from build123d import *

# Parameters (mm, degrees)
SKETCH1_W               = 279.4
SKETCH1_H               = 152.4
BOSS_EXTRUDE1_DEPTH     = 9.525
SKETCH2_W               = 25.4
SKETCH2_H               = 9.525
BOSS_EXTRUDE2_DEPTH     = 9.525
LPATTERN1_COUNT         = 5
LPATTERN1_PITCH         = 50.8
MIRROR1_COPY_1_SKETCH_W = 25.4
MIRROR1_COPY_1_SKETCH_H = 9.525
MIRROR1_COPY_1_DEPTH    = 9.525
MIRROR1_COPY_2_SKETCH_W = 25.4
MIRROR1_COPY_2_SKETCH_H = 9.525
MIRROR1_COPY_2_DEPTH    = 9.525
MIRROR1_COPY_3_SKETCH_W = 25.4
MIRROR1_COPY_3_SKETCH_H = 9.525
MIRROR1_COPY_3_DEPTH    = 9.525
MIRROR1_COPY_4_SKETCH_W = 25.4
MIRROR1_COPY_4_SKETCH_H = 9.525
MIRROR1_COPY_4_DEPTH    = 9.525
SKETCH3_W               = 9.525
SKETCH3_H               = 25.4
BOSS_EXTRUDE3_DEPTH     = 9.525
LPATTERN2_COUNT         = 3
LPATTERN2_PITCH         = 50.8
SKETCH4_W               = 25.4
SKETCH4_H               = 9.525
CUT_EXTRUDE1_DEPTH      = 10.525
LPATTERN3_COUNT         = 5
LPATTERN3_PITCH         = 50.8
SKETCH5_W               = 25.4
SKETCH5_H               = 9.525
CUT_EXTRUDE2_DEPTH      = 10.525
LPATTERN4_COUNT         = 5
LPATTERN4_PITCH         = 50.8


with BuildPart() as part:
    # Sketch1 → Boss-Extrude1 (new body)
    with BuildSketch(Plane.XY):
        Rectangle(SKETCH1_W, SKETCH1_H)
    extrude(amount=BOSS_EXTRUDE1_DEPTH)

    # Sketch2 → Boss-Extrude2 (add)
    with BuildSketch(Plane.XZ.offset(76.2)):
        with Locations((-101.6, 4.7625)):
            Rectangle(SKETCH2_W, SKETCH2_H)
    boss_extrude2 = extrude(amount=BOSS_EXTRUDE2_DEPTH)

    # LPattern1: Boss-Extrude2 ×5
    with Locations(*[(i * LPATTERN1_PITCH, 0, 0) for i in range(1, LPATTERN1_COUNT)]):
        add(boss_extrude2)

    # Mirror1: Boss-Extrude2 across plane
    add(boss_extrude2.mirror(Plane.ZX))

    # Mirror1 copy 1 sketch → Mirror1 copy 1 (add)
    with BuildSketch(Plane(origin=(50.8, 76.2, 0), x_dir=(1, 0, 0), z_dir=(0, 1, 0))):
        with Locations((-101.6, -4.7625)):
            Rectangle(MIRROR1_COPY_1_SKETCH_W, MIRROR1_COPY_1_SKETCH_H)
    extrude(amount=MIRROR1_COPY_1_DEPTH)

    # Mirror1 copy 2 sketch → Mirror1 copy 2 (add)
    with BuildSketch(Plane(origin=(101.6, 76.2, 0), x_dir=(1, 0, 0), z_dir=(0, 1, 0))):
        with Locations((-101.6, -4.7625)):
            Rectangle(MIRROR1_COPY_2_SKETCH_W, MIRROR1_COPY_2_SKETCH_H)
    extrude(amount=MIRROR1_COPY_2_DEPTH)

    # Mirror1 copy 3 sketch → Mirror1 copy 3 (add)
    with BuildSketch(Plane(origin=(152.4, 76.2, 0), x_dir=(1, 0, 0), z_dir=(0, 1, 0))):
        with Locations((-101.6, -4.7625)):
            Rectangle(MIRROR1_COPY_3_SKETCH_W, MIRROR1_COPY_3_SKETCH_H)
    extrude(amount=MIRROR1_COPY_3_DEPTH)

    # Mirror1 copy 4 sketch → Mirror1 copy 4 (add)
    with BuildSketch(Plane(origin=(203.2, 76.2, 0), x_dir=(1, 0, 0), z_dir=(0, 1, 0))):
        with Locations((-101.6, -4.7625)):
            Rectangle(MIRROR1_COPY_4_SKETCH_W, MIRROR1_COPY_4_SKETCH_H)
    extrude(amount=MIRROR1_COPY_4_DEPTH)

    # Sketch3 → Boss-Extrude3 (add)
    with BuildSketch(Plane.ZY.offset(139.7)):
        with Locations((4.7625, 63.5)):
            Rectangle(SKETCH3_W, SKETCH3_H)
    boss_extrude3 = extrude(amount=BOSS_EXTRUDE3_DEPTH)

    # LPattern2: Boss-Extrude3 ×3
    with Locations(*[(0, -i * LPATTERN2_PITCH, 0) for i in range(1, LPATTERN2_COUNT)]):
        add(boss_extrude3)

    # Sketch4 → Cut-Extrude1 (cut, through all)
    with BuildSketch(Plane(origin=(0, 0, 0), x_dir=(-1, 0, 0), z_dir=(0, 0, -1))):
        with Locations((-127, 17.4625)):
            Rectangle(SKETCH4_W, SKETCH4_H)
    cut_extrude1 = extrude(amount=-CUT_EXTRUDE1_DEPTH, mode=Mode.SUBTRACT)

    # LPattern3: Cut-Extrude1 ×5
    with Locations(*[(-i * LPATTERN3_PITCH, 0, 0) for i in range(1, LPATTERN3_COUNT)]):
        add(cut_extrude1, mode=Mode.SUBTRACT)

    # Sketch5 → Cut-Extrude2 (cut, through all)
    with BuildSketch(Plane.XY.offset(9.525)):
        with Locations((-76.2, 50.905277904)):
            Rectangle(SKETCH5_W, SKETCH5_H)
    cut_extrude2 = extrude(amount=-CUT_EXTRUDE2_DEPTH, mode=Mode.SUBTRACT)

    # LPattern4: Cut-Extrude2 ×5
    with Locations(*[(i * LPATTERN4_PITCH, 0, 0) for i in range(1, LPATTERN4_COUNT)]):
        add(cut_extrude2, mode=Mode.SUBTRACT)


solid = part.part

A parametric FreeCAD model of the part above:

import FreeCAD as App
import Part
import Sketcher
Q = App.Units.Quantity


def add_polygon(sketch, points):
    """Adds a closed chain of lines whose ends are joined by coincident constraints."""
    first, n = sketch.GeometryCount, len(points)
    for a, b in zip(points, points[1:] + points[:1]):
        sketch.addGeometry(Part.LineSegment(App.Vector(*a, 0), App.Vector(*b, 0)), False)
    for i in range(n):
        sketch.addConstraint(Sketcher.Constraint("Coincident", first + i, 2, first + (i + 1) % n, 1))

doc = App.newDocument("Part")
body = doc.addObject("PartDesign::Body", "Body")

sketch1 = body.newObject("Sketcher::SketchObject", "Sketch")
sketch1.AttachmentSupport = (doc.getObject("XY_Plane"), [""])
sketch1.MapMode = "FlatFace"
add_polygon(sketch1, [(-139.7, 76.2), (-139.7, -76.2), (139.7, -76.2), (139.7, 76.2)])
sketch1.addConstraint([
    Sketcher.Constraint("Vertical", 0),
    Sketcher.Constraint("Horizontal", 1),
    Sketcher.Constraint("Vertical", 2),
    Sketcher.Constraint("Horizontal", 3),
    Sketcher.Constraint("Symmetric", 0, 2, 2, 2, -1, 1),
    Sketcher.Constraint("DistanceX", 1, 1, 1, 2, Q("11 in")),
    Sketcher.Constraint("DistanceY", 0, 2, 0, 1, Q("6 in")),
])
pad1 = body.newObject("PartDesign::Pad", "Pad")
pad1.Profile = sketch1
pad1.Length = Q("0.375 in")

sketch2 = body.newObject("Sketcher::SketchObject", "Sketch001")
sketch2.AttachmentSupport = (doc.getObject("XZ_Plane"), [""])
sketch2.MapMode = "FlatFace"
sketch2.AttachmentOffset = App.Placement(App.Vector(0, 0, 3 * 25.4), App.Rotation())
add_polygon(sketch2, [(-114.3, 9.525), (-114.3, 0), (-88.9, 0), (-88.9, 9.525)])
sketch2.addConstraint([
    Sketcher.Constraint("Vertical", 0),
    Sketcher.Constraint("Horizontal", 1),
    Sketcher.Constraint("Vertical", 2),
    Sketcher.Constraint("Horizontal", 3),
    Sketcher.Constraint("PointOnObject", 0, 2, -1),
    Sketcher.Constraint("DistanceX", 1, 1, 1, 2, Q("1 in")),
    Sketcher.Constraint("DistanceX", 0, 2, -1, 1, Q("4.5 in")),
    Sketcher.Constraint("DistanceY", 0, 2, 0, 1, Q("0.375 in")),
])
pad2 = body.newObject("PartDesign::Pad", "Pad001")
pad2.Profile = sketch2
pad2.Length = Q("0.375 in")
doc.recompute()

linearpattern = body.newObject("PartDesign::LinearPattern", "LinearPattern")
linearpattern.Originals = [pad2]
linearpattern.Direction = (doc.getObject("X_Axis"), [""])
linearpattern.Mode = "offset"
linearpattern.Offset = Q("2 in")
linearpattern.Occurrences = 5
body.Tip = linearpattern
doc.recompute()

mirrored = body.newObject("PartDesign::Mirrored", "Mirrored")
mirrored.Originals = [pad2]
mirrored.MirrorPlane = (doc.getObject("XZ_Plane"), [""])
body.Tip = mirrored

sketch3 = body.newObject("Sketcher::SketchObject", "Sketch002")
sketch3.AttachmentSupport = (doc.getObject("XZ_Plane"), [""])
sketch3.MapMode = "FlatFace"
sketch3.AttachmentOffset = App.Placement(App.Vector(0, 0, -3 * 25.4), App.Rotation())
add_polygon(sketch3, [(-63.5, 0), (-63.5, 9.525), (-38.1, 9.525), (-38.1, 0)])
sketch3.addConstraint([
    Sketcher.Constraint("Vertical", 0),
    Sketcher.Constraint("Horizontal", 1),
    Sketcher.Constraint("Vertical", 2),
    Sketcher.Constraint("Horizontal", 3),
    Sketcher.Constraint("PointOnObject", 2, 2, -1),
    Sketcher.Constraint("DistanceX", 1, 1, 1, 2, Q("1 in")),
    Sketcher.Constraint("DistanceX", 0, 2, -1, 1, Q("2.5 in")),
    Sketcher.Constraint("DistanceY", 0, 1, 0, 2, Q("0.375 in")),
])
pad3 = body.newObject("PartDesign::Pad", "Pad002")
pad3.Profile = sketch3
pad3.Length = Q("0.375 in")
pad3.Reversed = True

sketch4 = body.newObject("Sketcher::SketchObject", "Sketch003")
sketch4.AttachmentSupport = (doc.getObject("XZ_Plane"), [""])
sketch4.MapMode = "FlatFace"
sketch4.AttachmentOffset = App.Placement(App.Vector(0, 0, -3 * 25.4), App.Rotation())
add_polygon(sketch4, [(-12.7, 0), (-12.7, 9.525), (12.7, 9.525), (12.7, 0)])
sketch4.addConstraint([
    Sketcher.Constraint("Vertical", 0),
    Sketcher.Constraint("Horizontal", 1),
    Sketcher.Constraint("Vertical", 2),
    Sketcher.Constraint("Horizontal", 3),
    Sketcher.Constraint("Symmetric", 2, 2, 3, 2, -1, 1),
    Sketcher.Constraint("DistanceX", 1, 1, 1, 2, Q("1 in")),
    Sketcher.Constraint("DistanceY", 0, 1, 0, 2, Q("0.375 in")),
])
pad4 = body.newObject("PartDesign::Pad", "Pad003")
pad4.Profile = sketch4
pad4.Length = Q("0.375 in")
pad4.Reversed = True

sketch5 = body.newObject("Sketcher::SketchObject", "Sketch004")
sketch5.AttachmentSupport = (doc.getObject("XZ_Plane"), [""])
sketch5.MapMode = "FlatFace"
sketch5.AttachmentOffset = App.Placement(App.Vector(0, 0, -3 * 25.4), App.Rotation())
add_polygon(sketch5, [(38.1, 0), (38.1, 9.525), (63.5, 9.525), (63.5, 0)])
sketch5.addConstraint([
    Sketcher.Constraint("Vertical", 0),
    Sketcher.Constraint("Horizontal", 1),
    Sketcher.Constraint("Vertical", 2),
    Sketcher.Constraint("Horizontal", 3),
    Sketcher.Constraint("PointOnObject", 2, 2, -1),
    Sketcher.Constraint("DistanceX", 1, 1, 1, 2, Q("1 in")),
    Sketcher.Constraint("DistanceX", -1, 1, 0, 2, Q("1.5 in")),
    Sketcher.Constraint("DistanceY", 0, 1, 0, 2, Q("0.375 in")),
])
pad5 = body.newObject("PartDesign::Pad", "Pad004")
pad5.Profile = sketch5
pad5.Length = Q("0.375 in")
pad5.Reversed = True

sketch6 = body.newObject("Sketcher::SketchObject", "Sketch005")
sketch6.AttachmentSupport = (doc.getObject("XZ_Plane"), [""])
sketch6.MapMode = "FlatFace"
sketch6.AttachmentOffset = App.Placement(App.Vector(0, 0, -3 * 25.4), App.Rotation())
add_polygon(sketch6, [(88.9, 0), (88.9, 9.525), (114.3, 9.525), (114.3, 0)])
sketch6.addConstraint([
    Sketcher.Constraint("Vertical", 0),
    Sketcher.Constraint("Horizontal", 1),
    Sketcher.Constraint("Vertical", 2),
    Sketcher.Constraint("Horizontal", 3),
    Sketcher.Constraint("PointOnObject", 2, 2, -1),
    Sketcher.Constraint("DistanceX", 1, 1, 1, 2, Q("1 in")),
    Sketcher.Constraint("DistanceX", -1, 1, 0, 2, Q("3.5 in")),
    Sketcher.Constraint("DistanceY", 0, 1, 0, 2, Q("0.375 in")),
])
pad6 = body.newObject("PartDesign::Pad", "Pad005")
pad6.Profile = sketch6
pad6.Length = Q("0.375 in")
pad6.Reversed = True

sketch7 = body.newObject("Sketcher::SketchObject", "Sketch006")
sketch7.AttachmentSupport = (doc.getObject("YZ_Plane"), [""])
sketch7.MapMode = "FlatFace"
sketch7.AttachmentOffset = App.Placement(App.Vector(0, 0, -5.5 * 25.4), App.Rotation())
add_polygon(sketch7, [(76.2, 0), (50.8, 0), (50.8, 9.525), (76.2, 9.525)])
sketch7.addConstraint([
    Sketcher.Constraint("Horizontal", 0),
    Sketcher.Constraint("Vertical", 1),
    Sketcher.Constraint("Horizontal", 2),
    Sketcher.Constraint("Vertical", 3),
    Sketcher.Constraint("PointOnObject", 0, 2, -1),
    Sketcher.Constraint("DistanceX", 0, 2, 0, 1, Q("1 in")),
    Sketcher.Constraint("DistanceX", -1, 1, 0, 2, Q("2 in")),
    Sketcher.Constraint("DistanceY", 1, 1, 1, 2, Q("0.375 in")),
])
pad7 = body.newObject("PartDesign::Pad", "Pad006")
pad7.Profile = sketch7
pad7.Length = Q("0.375 in")
pad7.Reversed = True
doc.recompute()

linearpattern2 = body.newObject("PartDesign::LinearPattern", "LinearPattern001")
linearpattern2.Originals = [pad7]
linearpattern2.Direction = (doc.getObject("Y_Axis"), [""])
linearpattern2.Mode = "offset"
linearpattern2.Offset = Q("2 in")
linearpattern2.Occurrences = 3
linearpattern2.Reversed = True
body.Tip = linearpattern2

sketch8 = body.newObject("Sketcher::SketchObject", "Sketch007")
sketch8.AttachmentSupport = (doc.getObject("XY_Plane"), [""])
sketch8.MapMode = "FlatFace"
add_polygon(sketch8, [(139.7, 22.225), (139.7, 12.7), (114.3, 12.7), (114.3, 22.225)])
sketch8.addConstraint([
    Sketcher.Constraint("Vertical", 0),
    Sketcher.Constraint("Horizontal", 1),
    Sketcher.Constraint("Vertical", 2),
    Sketcher.Constraint("Horizontal", 3),
    Sketcher.Constraint("DistanceX", 1, 2, 1, 1, Q("1 in")),
    Sketcher.Constraint("DistanceX", -1, 1, 0, 2, Q("5.5 in")),
    Sketcher.Constraint("DistanceY", -1, 1, 0, 2, Q("0.5 in")),
    Sketcher.Constraint("DistanceY", 0, 2, 0, 1, Q("0.375 in")),
])
pocket1 = body.newObject("PartDesign::Pocket", "Pocket")
pocket1.Profile = sketch8
pocket1.Type = "ThroughAll"
pocket1.Reversed = True
doc.recompute()

linearpattern3 = body.newObject("PartDesign::LinearPattern", "LinearPattern002")
linearpattern3.Originals = [pocket1]
linearpattern3.Direction = (doc.getObject("X_Axis"), [""])
linearpattern3.Mode = "offset"
linearpattern3.Offset = Q("2 in")
linearpattern3.Occurrences = 5
linearpattern3.Reversed = True
body.Tip = linearpattern3

sketch9 = body.newObject("Sketcher::SketchObject", "Sketch008")
sketch9.AttachmentSupport = (doc.getObject("XY_Plane"), [""])
sketch9.MapMode = "FlatFace"
sketch9.AttachmentOffset = App.Placement(App.Vector(0, 0, 0.375 * 25.4), App.Rotation())
add_polygon(sketch9, [(-88.9, 55.667778), (-88.9, 46.142778), (-63.5, 46.142778), (-63.5, 55.667778)])
sketch9.addConstraint([
    Sketcher.Constraint("Vertical", 0),
    Sketcher.Constraint("Horizontal", 1),
    Sketcher.Constraint("Vertical", 2),
    Sketcher.Constraint("Horizontal", 3),
    Sketcher.Constraint("DistanceX", 1, 1, 1, 2, Q("1 in")),
    Sketcher.Constraint("DistanceX", 0, 2, -1, 1, Q("3.5 in")),
    Sketcher.Constraint("DistanceY", 0, 2, 0, 1, Q("0.375 in")),
    Sketcher.Constraint("DistanceY", -1, 1, 0, 2, Q("46.142778 mm")),
])
pocket2 = body.newObject("PartDesign::Pocket", "Pocket001")
pocket2.Profile = sketch9
pocket2.Type = "ThroughAll"
doc.recompute()

linearpattern4 = body.newObject("PartDesign::LinearPattern", "LinearPattern003")
linearpattern4.Originals = [pocket2]
linearpattern4.Direction = (doc.getObject("X_Axis"), [""])
linearpattern4.Mode = "offset"
linearpattern4.Offset = Q("2 in")
linearpattern4.Occurrences = 5
body.Tip = linearpattern4

doc.recompute()
